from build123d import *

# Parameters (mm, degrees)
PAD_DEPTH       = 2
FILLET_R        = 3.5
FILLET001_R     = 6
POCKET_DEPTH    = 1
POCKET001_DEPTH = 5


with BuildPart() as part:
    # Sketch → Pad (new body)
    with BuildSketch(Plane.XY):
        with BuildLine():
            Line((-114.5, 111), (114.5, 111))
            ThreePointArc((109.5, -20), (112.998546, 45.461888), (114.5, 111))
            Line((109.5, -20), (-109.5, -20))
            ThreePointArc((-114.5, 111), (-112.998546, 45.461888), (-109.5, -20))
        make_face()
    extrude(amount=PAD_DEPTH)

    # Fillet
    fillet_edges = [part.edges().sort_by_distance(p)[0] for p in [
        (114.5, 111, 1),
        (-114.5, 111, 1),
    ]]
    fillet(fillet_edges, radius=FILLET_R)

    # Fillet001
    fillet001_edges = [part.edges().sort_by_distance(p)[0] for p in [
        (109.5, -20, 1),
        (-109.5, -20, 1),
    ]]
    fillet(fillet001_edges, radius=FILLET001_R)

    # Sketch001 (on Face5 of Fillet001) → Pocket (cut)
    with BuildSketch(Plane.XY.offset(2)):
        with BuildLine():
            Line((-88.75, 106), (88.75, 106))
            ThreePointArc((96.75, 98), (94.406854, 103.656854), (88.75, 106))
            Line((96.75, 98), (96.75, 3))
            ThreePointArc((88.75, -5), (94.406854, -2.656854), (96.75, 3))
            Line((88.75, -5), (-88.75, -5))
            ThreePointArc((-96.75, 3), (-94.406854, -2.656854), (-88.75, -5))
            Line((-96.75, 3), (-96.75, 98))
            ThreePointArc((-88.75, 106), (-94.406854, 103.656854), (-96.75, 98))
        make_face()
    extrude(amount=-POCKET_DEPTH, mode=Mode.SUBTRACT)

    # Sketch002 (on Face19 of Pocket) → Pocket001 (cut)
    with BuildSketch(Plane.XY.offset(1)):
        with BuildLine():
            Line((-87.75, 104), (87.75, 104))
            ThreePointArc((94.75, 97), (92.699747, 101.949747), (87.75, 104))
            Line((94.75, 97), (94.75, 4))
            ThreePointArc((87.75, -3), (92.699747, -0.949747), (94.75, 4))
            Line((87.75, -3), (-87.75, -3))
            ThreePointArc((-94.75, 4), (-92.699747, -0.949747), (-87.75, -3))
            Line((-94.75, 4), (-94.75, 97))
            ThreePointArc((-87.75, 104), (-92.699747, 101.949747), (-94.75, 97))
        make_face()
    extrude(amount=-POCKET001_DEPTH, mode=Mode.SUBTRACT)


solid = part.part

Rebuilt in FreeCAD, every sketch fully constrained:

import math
import FreeCAD as App
import Part
import Sketcher

V = App.Vector


def edges_at(feature, points):
    """Names of the edges that pass closest to the given points."""
    edges = feature.Shape.Edges
    near = lambda p: min(range(len(edges)), key=lambda i: edges[i].distToShape(Part.Vertex(*p))[0])
    return sorted({f"Edge{near(p) + 1}" for p in points})

doc = App.newDocument("Part")
body = doc.addObject("PartDesign::Body", "Body")

sketch1 = body.newObject("Sketcher::SketchObject", "Sketch")
sketch1.AttachmentSupport = (doc.getObject("XY_Plane"), [""])
sketch1.MapMode = "FlatFace"
sketch1.addGeometry([
    Part.LineSegment(V(114, 111, 0), V(-114, 111, 0)),
    Part.ArcOfCircle(Part.Circle(V(2036, 127, 0), V(0, 0, 1), 2150), math.radians(-179.56), math.radians(-176.07)),
    Part.LineSegment(V(-110, -20, 0), V(110, -20, 0)),
    Part.ArcOfCircle(Part.Circle(V(-2036, 127, 0), V(0, 0, 1), 2150), math.radians(-3.93), math.radians(-0.44)),
], False)
sketch1.addConstraint([
    Sketcher.Constraint("Coincident", 0, 2, 1, 1),
    Sketcher.Constraint("Coincident", 1, 2, 2, 1),
    Sketcher.Constraint("Coincident", 2, 2, 3, 1),
    Sketcher.Constraint("Coincident", 3, 2, 0, 1),
    Sketcher.Constraint("Horizontal", 0),
    Sketcher.Constraint("Horizontal", 2),
    Sketcher.Constraint("Equal", 1, 3),
    Sketcher.Constraint("Symmetric", 1, 3, 3, 3, -2),
    Sketcher.Constraint("DistanceX", 0, 2, 0, 1, 229.0),
    Sketcher.Constraint("DistanceX", 2, 1, 2, 2, 219.0),
    Sketcher.Constraint("DistanceY", -1, 1, 0, 2, 111.0),
    Sketcher.Constraint("DistanceY", 2, 2, -1, 1, 20.0),
    Sketcher.Constraint("Radius", 1, 2150.312432),
])
pad1 = body.newObject("PartDesign::Pad", "Pad")
pad1.Profile = sketch1
pad1.Length = 2
doc.recompute()

fillet = body.newObject("PartDesign::Fillet", "Fillet")
fillet.Base = (pad1, edges_at(pad1, [(114.5, 111, 1), (-114.5, 111, 1)]))
fillet.Radius = 3.5
doc.recompute()

fillet2 = body.newObject("PartDesign::Fillet", "Fillet001")
fillet2.Base = (fillet, edges_at(fillet, [(109.5, -20, 1), (-109.5, -20, 1)]))
fillet2.Radius = 6

sketch2 = body.newObject("Sketcher::SketchObject", "Sketch001")
sketch2.AttachmentSupport = (doc.getObject("XY_Plane"), [""])
sketch2.MapMode = "FlatFace"
sketch2.AttachmentOffset = App.Placement(V(0, 0, 2), App.Rotation())
sketch2.addGeometry([
    Part.LineSegment(V(89, 106, 0), V(-89, 106, 0)),
    Part.ArcOfCircle(Part.Circle(V(-89, 98, 0), V(0, 0, 1), 8), math.radians(90), math.radians(180)),
    Part.LineSegment(V(-97, 98, 0), V(-97, 3, 0)),
    Part.ArcOfCircle(Part.Circle(V(-89, 3, 0), V(0, 0, 1), 8), math.radians(-180), math.radians(-90)),
    Part.LineSegment(V(-89, -5, 0), V(89, -5, 0)),
    Part.ArcOfCircle(Part.Circle(V(89, 3, 0), V(0, 0, 1), 8), math.radians(-90), math.radians(0)),
    Part.LineSegment(V(97, 3, 0), V(97, 98, 0)),
    Part.ArcOfCircle(Part.Circle(V(89, 98, 0), V(0, 0, 1), 8), math.radians(0), math.radians(90)),
], False)
sketch2.addConstraint([
    Sketcher.Constraint("Tangent", 0, 2, 1, 1),
    Sketcher.Constraint("Tangent", 1, 2, 2, 1),
    Sketcher.Constraint("Tangent", 2, 2, 3, 1),
    Sketcher.Constraint("Tangent", 3, 2, 4, 1),
    Sketcher.Constraint("Tangent", 4, 2, 5, 1),
    Sketcher.Constraint("Tangent", 5, 2, 6, 1),
    Sketcher.Constraint("Tangent", 6, 2, 7, 1),
    Sketcher.Constraint("Tangent", 7, 2, 0, 1),
    Sketcher.Constraint("Horizontal", 0),
    Sketcher.Constraint("Vertical", 2),
    Sketcher.Constraint("Horizontal", 4),
    Sketcher.Constraint("Vertical", 6),
    Sketcher.Constraint("Equal", 1, 3),
    Sketcher.Constraint("Equal", 3, 5),
    Sketcher.Constraint("Equal", 5, 7),
    Sketcher.Constraint("Radius", 1, 8.000001),
    Sketcher.Constraint("DistanceY", 2, 2, 2, 1, 95.0),
    Sketcher.Constraint("DistanceX", 0, 2, 0, 1, 177.5),
    Sketcher.Constraint("DistanceY", -1, 1, 1, 3, 97.999999),
    Sketcher.Constraint("DistanceX", 1, 3, -1, 1, 88.749999),
])
pocket1 = body.newObject("PartDesign::Pocket", "Pocket")
pocket1.Profile = sketch2
pocket1.Length = 1

sketch3 = body.newObject("Sketcher::SketchObject", "Sketch002")
sketch3.AttachmentSupport = (doc.getObject("XY_Plane"), [""])
sketch3.MapMode = "FlatFace"
sketch3.AttachmentOffset = App.Placement(V(0, 0, 1), App.Rotation())
sketch3.addGeometry([
    Part.LineSegment(V(88, 104, 0), V(-88, 104, 0)),
    Part.ArcOfCircle(Part.Circle(V(-88, 97, 0), V(0, 0, 1), 7), math.radians(90), math.radians(180)),
    Part.LineSegment(V(-95, 97, 0), V(-95, 4, 0)),
    Part.ArcOfCircle(Part.Circle(V(-88, 4, 0), V(0, 0, 1), 7), math.radians(-180), math.radians(-90)),
    Part.LineSegment(V(-88, -3, 0), V(88, -3, 0)),
    Part.ArcOfCircle(Part.Circle(V(88, 4, 0), V(0, 0, 1), 7), math.radians(-90), math.radians(0)),
    Part.LineSegment(V(95, 4, 0), V(95, 97, 0)),
    Part.ArcOfCircle(Part.Circle(V(88, 97, 0), V(0, 0, 1), 7), math.radians(0), math.radians(90)),
], False)
sketch3.addConstraint([
    Sketcher.Constraint("Tangent", 0, 2, 1, 1),
    Sketcher.Constraint("Tangent", 1, 2, 2, 1),
    Sketcher.Constraint("Tangent", 2, 2, 3, 1),
    Sketcher.Constraint("Tangent", 3, 2, 4, 1),
    Sketcher.Constraint("Tangent", 4, 2, 5, 1),
    Sketcher.Constraint("Tangent", 5, 2, 6, 1),
    Sketcher.Constraint("Tangent", 6, 2, 7, 1),
    Sketcher.Constraint("Tangent", 7, 2, 0, 1),
    Sketcher.Constraint("Horizontal", 0),
    Sketcher.Constraint("Vertical", 2),
    Sketcher.Constraint("Horizontal", 4),
    Sketcher.Constraint("Vertical", 6),
    Sketcher.Constraint("Equal", 1, 3),
    Sketcher.Constraint("Equal", 3, 5),
    Sketcher.Constraint("Equal", 5, 7),
    Sketcher.Constraint("Radius", 1, 7.000002),
    Sketcher.Constraint("DistanceY", 2, 2, 2, 1, 93.0),
    Sketcher.Constraint("DistanceX", 0, 2, 0, 1, 175.5),
    Sketcher.Constraint("DistanceY", -1, 1, 1, 3, 96.999998),
    Sketcher.Constraint("DistanceX", 1, 3, -1, 1, 87.749998),
])
pocket2 = body.newObject("PartDesign::Pocket", "Pocket001")
pocket2.Profile = sketch3
pocket2.Length = 5

doc.recompute()
